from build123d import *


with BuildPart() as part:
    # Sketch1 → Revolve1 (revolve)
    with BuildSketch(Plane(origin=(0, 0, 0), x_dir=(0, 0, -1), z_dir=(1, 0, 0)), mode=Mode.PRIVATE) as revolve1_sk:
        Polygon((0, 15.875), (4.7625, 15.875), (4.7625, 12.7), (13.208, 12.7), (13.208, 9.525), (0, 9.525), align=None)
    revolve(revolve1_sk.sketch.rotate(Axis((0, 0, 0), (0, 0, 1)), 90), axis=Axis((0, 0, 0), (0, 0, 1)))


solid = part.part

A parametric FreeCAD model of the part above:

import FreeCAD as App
import Part
import Sketcher
from FreeCAD import Vector
Q = App.Units.Quantity

doc = App.newDocument("Part")
body = doc.addObject("PartDesign::Body", "Body")

# Sketch on YZ plane
sketch1 = body.newObject("Sketcher::SketchObject", "Sketch")
sketch1.AttachmentSupport = (doc.getObject("YZ_Plane"), [""])
sketch1.MapMode = "FlatFace"
sketch1.addGeometry([
    Part.LineSegment(Vector(15.9, -4.8, 0), Vector(15.9, 0, 0)),  # 0
    Part.LineSegment(Vector(15.9, 0, 0), Vector(9.5, 0, 0)),  # 1
    Part.LineSegment(Vector(9.5, 0, 0), Vector(9.5, -13.2, 0)),  # 2
    Part.LineSegment(Vector(9.5, -13.2, 0), Vector(12.7, -13.2, 0)),  # 3
    Part.LineSegment(Vector(12.7, -13.2, 0), Vector(12.7, -4.8, 0)),  # 4
    Part.LineSegment(Vector(12.7, -4.8, 0), Vector(15.9, -4.8, 0)),  # 5
], False)
sketch1.addConstraint([
    Sketcher.Constraint("Coincident", 0, 2, 1, 1),
    Sketcher.Constraint("Coincident", 1, 2, 2, 1),
    Sketcher.Constraint("Coincident", 2, 2, 3, 1),
    Sketcher.Constraint("Coincident", 3, 2, 4, 1),
    Sketcher.Constraint("Coincident", 4, 2, 5, 1),
    Sketcher.Constraint("Coincident", 5, 2, 0, 1),
    Sketcher.Constraint("Vertical", 0),
    Sketcher.Constraint("Horizontal", 1),
    Sketcher.Constraint("Vertical", 2),
    Sketcher.Constraint("Horizontal", 3),
    Sketcher.Constraint("Vertical", 4),
    Sketcher.Constraint("Horizontal", 5),
    Sketcher.Constraint("PointOnObject", 0, 2, -1),
    Sketcher.Constraint("Equal", 3, 5),
    Sketcher.Constraint("DistanceX", 1, 2, 1, 1, Q("0.25 in")),
    Sketcher.Constraint("DistanceY", 2, 2, 2, 1, Q("0.52 in")),
    Sketcher.Constraint("DistanceX", -1, 1, 3, 2, Q("0.5 in")),
    Sketcher.Constraint("DistanceY", 0, 1, 0, 2, Q("0.1875 in")),
])
revolution = body.newObject("PartDesign::Revolution", "Revolution")
revolution.Profile = sketch1
revolution.ReferenceAxis = (sketch1, ["V_Axis"])
revolution.Angle = 360

doc.recompute()
